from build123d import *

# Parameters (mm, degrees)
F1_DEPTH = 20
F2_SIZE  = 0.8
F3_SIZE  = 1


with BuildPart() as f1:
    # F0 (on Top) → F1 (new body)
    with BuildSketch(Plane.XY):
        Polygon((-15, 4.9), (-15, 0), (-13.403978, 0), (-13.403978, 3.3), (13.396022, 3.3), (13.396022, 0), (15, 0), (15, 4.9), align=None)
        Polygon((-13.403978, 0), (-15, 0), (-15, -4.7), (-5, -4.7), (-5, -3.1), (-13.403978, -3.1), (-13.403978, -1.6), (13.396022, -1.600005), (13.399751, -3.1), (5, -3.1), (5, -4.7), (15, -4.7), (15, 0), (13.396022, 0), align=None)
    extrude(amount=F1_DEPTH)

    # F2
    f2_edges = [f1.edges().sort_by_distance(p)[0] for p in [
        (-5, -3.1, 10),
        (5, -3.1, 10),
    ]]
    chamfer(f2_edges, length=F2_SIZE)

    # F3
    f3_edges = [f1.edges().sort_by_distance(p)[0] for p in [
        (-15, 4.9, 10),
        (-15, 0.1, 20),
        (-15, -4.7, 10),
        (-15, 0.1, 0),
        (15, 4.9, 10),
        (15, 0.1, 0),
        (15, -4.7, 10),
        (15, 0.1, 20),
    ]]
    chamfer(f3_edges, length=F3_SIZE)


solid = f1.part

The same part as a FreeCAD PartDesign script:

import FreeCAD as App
import Part
import Sketcher
from FreeCAD import Vector
Q = App.Units.Quantity


def edges_at(feature, points):
    """Names of the edges that pass closest to the given points."""
    edges = feature.Shape.Edges
    near = lambda p: min(range(len(edges)), key=lambda i: edges[i].distToShape(Part.Vertex(*p))[0])
    return sorted({f"Edge{near(p) + 1}" for p in points})

doc = App.newDocument("Part")
params = doc.addObject("Spreadsheet::Sheet", "Params")
for row, (alias, value) in enumerate([
    ("sketch1_width", "10 mm"),
    ("sketch1_width2", "30 mm"),
    ("sketch1_width3", "26.8 mm"),
    ("sketch1_height", "9.6 mm"),
    ("sketch1_height2", "1.6 mm"),
    ("pad1_length", "20 mm"),
    ("chamfer_size", "0.8 mm"),
    ("chamfer2_size", "1 mm"),
], start=1):
    params.set(f"A{row}", alias)
    params.set(f"B{row}", "=" + value)
    params.setAlias(f"B{row}", alias)

body = doc.addObject("PartDesign::Body", "Body")

sketch1 = body.newObject("Sketcher::SketchObject", "Sketch")
sketch1.AttachmentSupport = (doc.getObject("XY_Plane"), [""])
sketch1.MapMode = "FlatFace"
sketch1.addGeometry([
    Part.LineSegment(Vector(-15, 4.9, 0), Vector(-15, -4.7, 0)),
    Part.LineSegment(Vector(-15, -4.7, 0), Vector(-5, -4.7, 0)),
    Part.LineSegment(Vector(-5, -4.7, 0), Vector(-5, -3.1, 0)),
    Part.LineSegment(Vector(-5, -3.1, 0), Vector(-13.4, -3.1, 0)),
    Part.LineSegment(Vector(-13.4, -3.1, 0), Vector(-13.4, -1.6, 0)),
    Part.LineSegment(Vector(-13.4, -1.6, 0), Vector(13.4, -1.6, 0)),
    Part.LineSegment(Vector(13.4, -1.6, 0), Vector(13.4, -3.1, 0)),
    Part.LineSegment(Vector(13.4, -3.1, 0), Vector(5, -3.1, 0)),
    Part.LineSegment(Vector(5, -3.1, 0), Vector(5, -4.7, 0)),
    Part.LineSegment(Vector(5, -4.7, 0), Vector(15, -4.7, 0)),
    Part.LineSegment(Vector(15, -4.7, 0), Vector(15, 4.9, 0)),
    Part.LineSegment(Vector(15, 4.9, 0), Vector(-15, 4.9, 0)),
    Part.LineSegment(Vector(-13.4, 0, 0), Vector(-13.4, 3.3, 0)),
    Part.LineSegment(Vector(-13.4, 3.3, 0), Vector(13.4, 3.3, 0)),
    Part.LineSegment(Vector(13.4, 3.3, 0), Vector(13.4, 0, 0)),
    Part.LineSegment(Vector(13.4, 0, 0), Vector(-13.4, 0, 0)),
], False)
sketch1.addConstraint([
    Sketcher.Constraint("Coincident", 0, 2, 1, 1),
    Sketcher.Constraint("Coincident", 1, 2, 2, 1),
    Sketcher.Constraint("Coincident", 2, 2, 3, 1),
    Sketcher.Constraint("Coincident", 3, 2, 4, 1),
    Sketcher.Constraint("Coincident", 4, 2, 5, 1),
    Sketcher.Constraint("Coincident", 5, 2, 6, 1),
    Sketcher.Constraint("Coincident", 6, 2, 7, 1),
    Sketcher.Constraint("Coincident", 7, 2, 8, 1),
    Sketcher.Constraint("Coincident", 8, 2, 9, 1),
    Sketcher.Constraint("Coincident", 9, 2, 10, 1),
    Sketcher.Constraint("Coincident", 10, 2, 11, 1),
    Sketcher.Constraint("Coincident", 11, 2, 0, 1),
    Sketcher.Constraint("Coincident", 12, 2, 13, 1),
    Sketcher.Constraint("Coincident", 13, 2, 14, 1),
    Sketcher.Constraint("Coincident", 14, 2, 15, 1),
    Sketcher.Constraint("Coincident", 15, 2, 12, 1),
    Sketcher.Constraint("Vertical", 0),
    Sketcher.Constraint("Horizontal", 1),
    Sketcher.Constraint("Vertical", 2),
    Sketcher.Constraint("Horizontal", 3),
    Sketcher.Constraint("Vertical", 4),
    Sketcher.Constraint("Horizontal", 7),
    Sketcher.Constraint("Vertical", 8),
    Sketcher.Constraint("Horizontal", 9),
    Sketcher.Constraint("Vertical", 10),
    Sketcher.Constraint("Horizontal", 11),
    Sketcher.Constraint("Vertical", 12),
    Sketcher.Constraint("Horizontal", 13),
    Sketcher.Constraint("Vertical", 14),
    Sketcher.Constraint("Horizontal", 15),
    Sketcher.Constraint("Symmetric", 2, 2, 7, 2, -2),
    Sketcher.Constraint("Symmetric", 0, 2, 9, 2, -2),
    Sketcher.Constraint("PointOnObject", 14, 2, -1),
    Sketcher.Constraint("Vertical", 4, 2, 12, 2),
    Sketcher.Constraint("Vertical", 5, 2, 13, 2),
    Sketcher.Constraint("DistanceX", 1, 1, 1, 2, 10.0),
    Sketcher.Constraint("DistanceX", 11, 2, 11, 1, 30.0),
    Sketcher.Constraint("Angle", 5, Q("-0.000011 deg")),
    Sketcher.Constraint("DistanceX", 13, 1, 13, 2, 26.8),
    Sketcher.Constraint("DistanceY", 0, 2, 0, 1, 9.6),
    Sketcher.Constraint("DistanceY", 2, 1, 2, 2, 1.6),
    Sketcher.Constraint("DistanceY", 4, 1, 4, 2, 1.5),
    Sketcher.Constraint("DistanceY", 12, 1, 12, 2, 3.3),
    Sketcher.Constraint("DistanceY", 0, 2, 12, 2, 8.0),
    Sketcher.Constraint("DistanceX", 7, 2, 7, 1, 8.399751),
    Sketcher.Constraint("DistanceX", 3, 2, 3, 1, 8.403978),
])
sketch1.setExpression("Constraints[35]", "Params.sketch1_width")
sketch1.setExpression("Constraints[36]", "Params.sketch1_width2")
sketch1.setExpression("Constraints[38]", "Params.sketch1_width3")
sketch1.setExpression("Constraints[39]", "Params.sketch1_height")
sketch1.setExpression("Constraints[40]", "Params.sketch1_height2")
pad1 = body.newObject("PartDesign::Pad", "Pad")
pad1.Profile = sketch1
pad1.setExpression("Length", "Params.pad1_length")
doc.recompute()

chamfer = body.newObject("PartDesign::Chamfer", "Chamfer")
chamfer.Base = (pad1, edges_at(pad1, [(-5, -3.1, 10), (5, -3.1, 10)]))
chamfer.setExpression("Size", "Params.chamfer_size")
doc.recompute()

chamfer2 = body.newObject("PartDesign::Chamfer", "Chamfer001")
chamfer2.Base = (chamfer, edges_at(chamfer, [
    (-15, 4.9, 10),
    (-15, 0.1, 20),
    (-15, -4.7, 10),
    (-15, 0.1, 0),
    (15, 4.9, 10),
    (15, 0.1, 0),
    (15, -4.7, 10),
    (15, 0.1, 20),
]))
chamfer2.setExpression("Size", "Params.chamfer2_size")

doc.recompute()
